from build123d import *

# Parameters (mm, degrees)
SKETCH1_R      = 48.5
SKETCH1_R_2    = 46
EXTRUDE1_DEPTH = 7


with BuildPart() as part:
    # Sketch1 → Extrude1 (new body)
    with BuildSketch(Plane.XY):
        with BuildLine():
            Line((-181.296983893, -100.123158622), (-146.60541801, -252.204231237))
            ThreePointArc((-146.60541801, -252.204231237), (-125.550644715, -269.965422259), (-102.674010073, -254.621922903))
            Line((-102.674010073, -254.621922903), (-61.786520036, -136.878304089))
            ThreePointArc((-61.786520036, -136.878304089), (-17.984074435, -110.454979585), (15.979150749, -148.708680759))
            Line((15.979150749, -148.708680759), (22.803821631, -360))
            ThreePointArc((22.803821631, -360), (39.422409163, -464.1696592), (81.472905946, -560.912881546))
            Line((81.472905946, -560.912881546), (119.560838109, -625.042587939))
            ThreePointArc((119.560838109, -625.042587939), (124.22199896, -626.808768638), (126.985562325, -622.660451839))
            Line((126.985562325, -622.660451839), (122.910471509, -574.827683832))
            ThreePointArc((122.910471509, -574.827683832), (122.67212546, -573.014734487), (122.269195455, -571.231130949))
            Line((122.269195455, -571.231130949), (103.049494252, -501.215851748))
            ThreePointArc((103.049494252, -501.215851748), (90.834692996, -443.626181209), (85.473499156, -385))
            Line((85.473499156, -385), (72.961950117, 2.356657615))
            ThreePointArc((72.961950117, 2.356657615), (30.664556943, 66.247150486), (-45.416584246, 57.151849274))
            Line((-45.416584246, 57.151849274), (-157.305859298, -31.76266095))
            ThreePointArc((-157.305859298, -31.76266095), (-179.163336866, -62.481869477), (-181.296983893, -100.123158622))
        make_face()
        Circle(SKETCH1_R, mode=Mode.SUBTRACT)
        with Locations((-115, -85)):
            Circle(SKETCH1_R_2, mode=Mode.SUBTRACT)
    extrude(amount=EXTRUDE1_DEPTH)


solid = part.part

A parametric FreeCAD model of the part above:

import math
import FreeCAD as App
import Part
import Sketcher
from FreeCAD import Vector
Q = App.Units.Quantity

doc = App.newDocument("Part")
body = doc.addObject("PartDesign::Body", "Body")

sketch1 = body.newObject("Sketcher::SketchObject", "Sketch")
sketch1.AttachmentSupport = (doc.getObject("XY_Plane"), [""])
sketch1.MapMode = "FlatFace"
sketch1.addGeometry([
    Part.LineSegment(Vector(-181.3, -100.1, 0), Vector(-146.6, -252.2, 0)),
    Part.ArcOfCircle(Part.Circle(Vector(-124.3, -247.1, 0), Vector(0, 0, 1), 22.9), math.radians(-167), math.radians(-19)),
    Part.LineSegment(Vector(-102.7, -254.6, 0), Vector(-61.8, -136.9, 0)),
    Part.ArcOfCircle(Part.Circle(Vector(-24, -150, 0), Vector(0, 0, 1), 40), math.radians(2), math.radians(161)),
    Part.LineSegment(Vector(16, -148.7, 0), Vector(22.8, -360, 0)),
    Part.ArcOfCircle(Part.Circle(Vector(442.6, -346.4, 0), Vector(0, 0, 1), 420), math.radians(-178), math.radians(-149)),
    Part.LineSegment(Vector(81.5, -560.9, 0), Vector(119.6, -625, 0)),
    Part.ArcOfCircle(Part.Circle(Vector(123, -623, 0), Vector(0, 0, 1), 4), math.radians(-149), math.radians(5)),
    Part.LineSegment(Vector(127, -622.7, 0), Vector(122.9, -574.8, 0)),
    Part.ArcOfCircle(Part.Circle(Vector(103, -576.5, 0), Vector(0, 0, 1), 20), math.radians(4.87), math.radians(15.35)),
    Part.LineSegment(Vector(122.3, -571.2, 0), Vector(103, -501.2, 0)),
    Part.ArcOfCircle(Part.Circle(Vector(585.2, -368.9, 0), Vector(0, 0, 1), 500), math.radians(-178.15), math.radians(-164.65)),
    Part.LineSegment(Vector(85.5, -385, 0), Vector(73, 2.4, 0)),
    Part.ArcOfCircle(Part.Circle(Vector(0, 0, 0), Vector(0, 0, 1), 73), math.radians(2), math.radians(128)),
    Part.LineSegment(Vector(-45.4, 57.2, 0), Vector(-157.3, -31.8, 0)),
    Part.ArcOfCircle(Part.Circle(Vector(-115, -85, 0), Vector(0, 0, 1), 68), math.radians(128), math.radians(193)),
    Part.Circle(Vector(-115, -85, 0), Vector(0, 0, 1), 46),
    Part.Circle(Vector(0, 0, 0), Vector(0, 0, 1), 48.5),
], False)
sketch1.addConstraint([
    Sketcher.Constraint("Tangent", 0, 2, 1, 1),
    Sketcher.Constraint("Tangent", 1, 2, 2, 1),
    Sketcher.Constraint("Tangent", 2, 2, 3, 2),
    Sketcher.Constraint("Tangent", 3, 1, 4, 1),
    Sketcher.Constraint("Tangent", 4, 2, 5, 1),
    Sketcher.Constraint("Tangent", 5, 2, 6, 1),
    Sketcher.Constraint("Tangent", 6, 2, 7, 1),
    Sketcher.Constraint("Tangent", 7, 2, 8, 1),
    Sketcher.Constraint("Tangent", 8, 2, 9, 1),
    Sketcher.Constraint("Tangent", 9, 2, 10, 1),
    Sketcher.Constraint("Tangent", 10, 2, 11, 2),
    Sketcher.Constraint("Tangent", 11, 1, 12, 1),
    Sketcher.Constraint("Tangent", 12, 2, 13, 1),
    Sketcher.Constraint("Tangent", 13, 2, 14, 1),
    Sketcher.Constraint("Tangent", 14, 2, 15, 1),
    Sketcher.Constraint("Tangent", 15, 2, 0, 1),
    Sketcher.Constraint("Coincident", 13, 3, -1, 1),
    Sketcher.Constraint("Coincident", 17, 3, -1, 1),
    Sketcher.Constraint("Coincident", 16, 3, 15, 3),
    Sketcher.Constraint("Parallel", 4, 12),
    Sketcher.Constraint("Diameter", 16, Q("92 mm")),
    Sketcher.Constraint("Diameter", 17, Q("97 mm")),
    Sketcher.Constraint("Radius", 3, Q("40 mm")),
    Sketcher.Constraint("Radius", 5, Q("420 mm")),
    Sketcher.Constraint("Radius", 7, Q("4 mm")),
    Sketcher.Constraint("Radius", 9, Q("20 mm")),
    Sketcher.Constraint("Radius", 11, Q("500 mm")),
    Sketcher.Constraint("Radius", 13, Q("73 mm")),
    Sketcher.Constraint("Radius", 15, Q("68 mm")),
    Sketcher.Constraint("DistanceX", 3, 3, -1, 1, Q("24 mm")),
    Sketcher.Constraint("DistanceY", 3, 3, -1, 1, Q("150 mm")),
    Sketcher.Constraint("DistanceX", -1, 1, 7, 3, Q("123 mm")),
    Sketcher.Constraint("DistanceY", 7, 3, -1, 1, Q("623 mm")),
    Sketcher.Constraint("DistanceX", 15, 3, -1, 1, Q("115 mm")),
    Sketcher.Constraint("DistanceY", 15, 3, -1, 1, Q("85 mm")),
    Sketcher.Constraint("DistanceY", 4, 2, -1, 1, Q("360 mm")),
    Sketcher.Constraint("Angle", 0, Q("-77.15 deg")),
    Sketcher.Constraint("Angle", 2, Q("70.85 deg")),
    Sketcher.Constraint("Angle", 4, Q("-88.15 deg")),
    Sketcher.Constraint("Angle", 10, Q("105.35 deg")),
    Sketcher.Constraint("Radius", 1, Q("22.885487 mm")),
    Sketcher.Constraint("DistanceX", 10, 2, 9, 2, Q("19.219701 mm")),
    Sketcher.Constraint("Distance", 8, Q("48.006042 mm")),
])
pad1 = body.newObject("PartDesign::Pad", "Pad")
pad1.Profile = sketch1
pad1.Length = 7

doc.recompute()
